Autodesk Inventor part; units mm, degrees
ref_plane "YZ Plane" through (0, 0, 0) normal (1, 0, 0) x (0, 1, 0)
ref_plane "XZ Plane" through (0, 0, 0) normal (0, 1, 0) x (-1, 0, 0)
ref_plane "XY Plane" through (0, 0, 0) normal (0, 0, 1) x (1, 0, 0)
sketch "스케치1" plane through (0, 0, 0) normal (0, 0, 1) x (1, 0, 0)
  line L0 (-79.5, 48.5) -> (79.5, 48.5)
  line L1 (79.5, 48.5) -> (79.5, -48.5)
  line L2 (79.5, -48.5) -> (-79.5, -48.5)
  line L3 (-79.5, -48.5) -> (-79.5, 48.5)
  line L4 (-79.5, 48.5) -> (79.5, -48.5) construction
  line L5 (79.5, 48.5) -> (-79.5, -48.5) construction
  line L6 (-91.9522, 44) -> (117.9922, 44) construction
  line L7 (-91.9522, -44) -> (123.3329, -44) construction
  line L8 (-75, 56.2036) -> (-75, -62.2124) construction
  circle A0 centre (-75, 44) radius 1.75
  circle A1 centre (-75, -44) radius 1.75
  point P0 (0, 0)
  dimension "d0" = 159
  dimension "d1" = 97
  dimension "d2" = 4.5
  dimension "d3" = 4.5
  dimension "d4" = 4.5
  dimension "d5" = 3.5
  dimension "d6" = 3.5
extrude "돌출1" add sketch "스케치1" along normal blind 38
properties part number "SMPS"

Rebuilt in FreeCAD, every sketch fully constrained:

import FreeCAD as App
import Part
import Sketcher

V = App.Vector
Q = App.Units.Quantity


def add_polygon(sketch, points):
    """Adds a closed chain of lines whose ends are joined by coincident constraints."""
    first, n = sketch.GeometryCount, len(points)
    for a, b in zip(points, points[1:] + points[:1]):
        sketch.addGeometry(Part.LineSegment(App.Vector(*a, 0), App.Vector(*b, 0)), False)
    for i in range(n):
        sketch.addConstraint(Sketcher.Constraint("Coincident", first + i, 2, first + (i + 1) % n, 1))

doc = App.newDocument("Part")
body = doc.addObject("PartDesign::Body", "Body")

sketch1 = body.newObject("Sketcher::SketchObject", "Sketch")
sketch1.AttachmentSupport = (doc.getObject("XY_Plane"), [""])
sketch1.MapMode = "FlatFace"
add_polygon(sketch1, [(79.5, 48.5), (-79.5, 48.5), (-79.5, -48.5), (79.5, -48.5)])
sketch1.addGeometry(Part.Circle(V(-75, -44, 0), V(0, 0, 1), 1.75), False)
sketch1.addGeometry(Part.Circle(V(-75, 44, 0), V(0, 0, 1), 1.75), False)
sketch1.addConstraint(Sketcher.Constraint("Horizontal", 0))
sketch1.addConstraint(Sketcher.Constraint("Vertical", 1))
sketch1.addConstraint(Sketcher.Constraint("Horizontal", 2))
sketch1.addConstraint(Sketcher.Constraint("Vertical", 3))
sketch1.addConstraint(Sketcher.Constraint("Equal", 4, 5))
sketch1.addConstraint(Sketcher.Constraint("Symmetric", 0, 2, 2, 2, -1, 1))
sketch1.addConstraint(Sketcher.Constraint("Symmetric", 4, 3, 5, 3, -1))
sketch1.addConstraint(Sketcher.Constraint("Diameter", 4, Q("3.5 mm")))
sketch1.addConstraint(Sketcher.Constraint("DistanceX", 0, 2, 0, 1, Q("159 mm")))
sketch1.addConstraint(Sketcher.Constraint("DistanceY", 1, 2, 1, 1, Q("97 mm")))
sketch1.addConstraint(Sketcher.Constraint("DistanceX", 0, 2, 5, 3, Q("4.5 mm")))
sketch1.addConstraint(Sketcher.Constraint("DistanceY", 5, 3, 0, 2, Q("4.5 mm")))
pad1 = body.newObject("PartDesign::Pad", "Pad")
pad1.Profile = sketch1
pad1.Length = 38

doc.recompute()
